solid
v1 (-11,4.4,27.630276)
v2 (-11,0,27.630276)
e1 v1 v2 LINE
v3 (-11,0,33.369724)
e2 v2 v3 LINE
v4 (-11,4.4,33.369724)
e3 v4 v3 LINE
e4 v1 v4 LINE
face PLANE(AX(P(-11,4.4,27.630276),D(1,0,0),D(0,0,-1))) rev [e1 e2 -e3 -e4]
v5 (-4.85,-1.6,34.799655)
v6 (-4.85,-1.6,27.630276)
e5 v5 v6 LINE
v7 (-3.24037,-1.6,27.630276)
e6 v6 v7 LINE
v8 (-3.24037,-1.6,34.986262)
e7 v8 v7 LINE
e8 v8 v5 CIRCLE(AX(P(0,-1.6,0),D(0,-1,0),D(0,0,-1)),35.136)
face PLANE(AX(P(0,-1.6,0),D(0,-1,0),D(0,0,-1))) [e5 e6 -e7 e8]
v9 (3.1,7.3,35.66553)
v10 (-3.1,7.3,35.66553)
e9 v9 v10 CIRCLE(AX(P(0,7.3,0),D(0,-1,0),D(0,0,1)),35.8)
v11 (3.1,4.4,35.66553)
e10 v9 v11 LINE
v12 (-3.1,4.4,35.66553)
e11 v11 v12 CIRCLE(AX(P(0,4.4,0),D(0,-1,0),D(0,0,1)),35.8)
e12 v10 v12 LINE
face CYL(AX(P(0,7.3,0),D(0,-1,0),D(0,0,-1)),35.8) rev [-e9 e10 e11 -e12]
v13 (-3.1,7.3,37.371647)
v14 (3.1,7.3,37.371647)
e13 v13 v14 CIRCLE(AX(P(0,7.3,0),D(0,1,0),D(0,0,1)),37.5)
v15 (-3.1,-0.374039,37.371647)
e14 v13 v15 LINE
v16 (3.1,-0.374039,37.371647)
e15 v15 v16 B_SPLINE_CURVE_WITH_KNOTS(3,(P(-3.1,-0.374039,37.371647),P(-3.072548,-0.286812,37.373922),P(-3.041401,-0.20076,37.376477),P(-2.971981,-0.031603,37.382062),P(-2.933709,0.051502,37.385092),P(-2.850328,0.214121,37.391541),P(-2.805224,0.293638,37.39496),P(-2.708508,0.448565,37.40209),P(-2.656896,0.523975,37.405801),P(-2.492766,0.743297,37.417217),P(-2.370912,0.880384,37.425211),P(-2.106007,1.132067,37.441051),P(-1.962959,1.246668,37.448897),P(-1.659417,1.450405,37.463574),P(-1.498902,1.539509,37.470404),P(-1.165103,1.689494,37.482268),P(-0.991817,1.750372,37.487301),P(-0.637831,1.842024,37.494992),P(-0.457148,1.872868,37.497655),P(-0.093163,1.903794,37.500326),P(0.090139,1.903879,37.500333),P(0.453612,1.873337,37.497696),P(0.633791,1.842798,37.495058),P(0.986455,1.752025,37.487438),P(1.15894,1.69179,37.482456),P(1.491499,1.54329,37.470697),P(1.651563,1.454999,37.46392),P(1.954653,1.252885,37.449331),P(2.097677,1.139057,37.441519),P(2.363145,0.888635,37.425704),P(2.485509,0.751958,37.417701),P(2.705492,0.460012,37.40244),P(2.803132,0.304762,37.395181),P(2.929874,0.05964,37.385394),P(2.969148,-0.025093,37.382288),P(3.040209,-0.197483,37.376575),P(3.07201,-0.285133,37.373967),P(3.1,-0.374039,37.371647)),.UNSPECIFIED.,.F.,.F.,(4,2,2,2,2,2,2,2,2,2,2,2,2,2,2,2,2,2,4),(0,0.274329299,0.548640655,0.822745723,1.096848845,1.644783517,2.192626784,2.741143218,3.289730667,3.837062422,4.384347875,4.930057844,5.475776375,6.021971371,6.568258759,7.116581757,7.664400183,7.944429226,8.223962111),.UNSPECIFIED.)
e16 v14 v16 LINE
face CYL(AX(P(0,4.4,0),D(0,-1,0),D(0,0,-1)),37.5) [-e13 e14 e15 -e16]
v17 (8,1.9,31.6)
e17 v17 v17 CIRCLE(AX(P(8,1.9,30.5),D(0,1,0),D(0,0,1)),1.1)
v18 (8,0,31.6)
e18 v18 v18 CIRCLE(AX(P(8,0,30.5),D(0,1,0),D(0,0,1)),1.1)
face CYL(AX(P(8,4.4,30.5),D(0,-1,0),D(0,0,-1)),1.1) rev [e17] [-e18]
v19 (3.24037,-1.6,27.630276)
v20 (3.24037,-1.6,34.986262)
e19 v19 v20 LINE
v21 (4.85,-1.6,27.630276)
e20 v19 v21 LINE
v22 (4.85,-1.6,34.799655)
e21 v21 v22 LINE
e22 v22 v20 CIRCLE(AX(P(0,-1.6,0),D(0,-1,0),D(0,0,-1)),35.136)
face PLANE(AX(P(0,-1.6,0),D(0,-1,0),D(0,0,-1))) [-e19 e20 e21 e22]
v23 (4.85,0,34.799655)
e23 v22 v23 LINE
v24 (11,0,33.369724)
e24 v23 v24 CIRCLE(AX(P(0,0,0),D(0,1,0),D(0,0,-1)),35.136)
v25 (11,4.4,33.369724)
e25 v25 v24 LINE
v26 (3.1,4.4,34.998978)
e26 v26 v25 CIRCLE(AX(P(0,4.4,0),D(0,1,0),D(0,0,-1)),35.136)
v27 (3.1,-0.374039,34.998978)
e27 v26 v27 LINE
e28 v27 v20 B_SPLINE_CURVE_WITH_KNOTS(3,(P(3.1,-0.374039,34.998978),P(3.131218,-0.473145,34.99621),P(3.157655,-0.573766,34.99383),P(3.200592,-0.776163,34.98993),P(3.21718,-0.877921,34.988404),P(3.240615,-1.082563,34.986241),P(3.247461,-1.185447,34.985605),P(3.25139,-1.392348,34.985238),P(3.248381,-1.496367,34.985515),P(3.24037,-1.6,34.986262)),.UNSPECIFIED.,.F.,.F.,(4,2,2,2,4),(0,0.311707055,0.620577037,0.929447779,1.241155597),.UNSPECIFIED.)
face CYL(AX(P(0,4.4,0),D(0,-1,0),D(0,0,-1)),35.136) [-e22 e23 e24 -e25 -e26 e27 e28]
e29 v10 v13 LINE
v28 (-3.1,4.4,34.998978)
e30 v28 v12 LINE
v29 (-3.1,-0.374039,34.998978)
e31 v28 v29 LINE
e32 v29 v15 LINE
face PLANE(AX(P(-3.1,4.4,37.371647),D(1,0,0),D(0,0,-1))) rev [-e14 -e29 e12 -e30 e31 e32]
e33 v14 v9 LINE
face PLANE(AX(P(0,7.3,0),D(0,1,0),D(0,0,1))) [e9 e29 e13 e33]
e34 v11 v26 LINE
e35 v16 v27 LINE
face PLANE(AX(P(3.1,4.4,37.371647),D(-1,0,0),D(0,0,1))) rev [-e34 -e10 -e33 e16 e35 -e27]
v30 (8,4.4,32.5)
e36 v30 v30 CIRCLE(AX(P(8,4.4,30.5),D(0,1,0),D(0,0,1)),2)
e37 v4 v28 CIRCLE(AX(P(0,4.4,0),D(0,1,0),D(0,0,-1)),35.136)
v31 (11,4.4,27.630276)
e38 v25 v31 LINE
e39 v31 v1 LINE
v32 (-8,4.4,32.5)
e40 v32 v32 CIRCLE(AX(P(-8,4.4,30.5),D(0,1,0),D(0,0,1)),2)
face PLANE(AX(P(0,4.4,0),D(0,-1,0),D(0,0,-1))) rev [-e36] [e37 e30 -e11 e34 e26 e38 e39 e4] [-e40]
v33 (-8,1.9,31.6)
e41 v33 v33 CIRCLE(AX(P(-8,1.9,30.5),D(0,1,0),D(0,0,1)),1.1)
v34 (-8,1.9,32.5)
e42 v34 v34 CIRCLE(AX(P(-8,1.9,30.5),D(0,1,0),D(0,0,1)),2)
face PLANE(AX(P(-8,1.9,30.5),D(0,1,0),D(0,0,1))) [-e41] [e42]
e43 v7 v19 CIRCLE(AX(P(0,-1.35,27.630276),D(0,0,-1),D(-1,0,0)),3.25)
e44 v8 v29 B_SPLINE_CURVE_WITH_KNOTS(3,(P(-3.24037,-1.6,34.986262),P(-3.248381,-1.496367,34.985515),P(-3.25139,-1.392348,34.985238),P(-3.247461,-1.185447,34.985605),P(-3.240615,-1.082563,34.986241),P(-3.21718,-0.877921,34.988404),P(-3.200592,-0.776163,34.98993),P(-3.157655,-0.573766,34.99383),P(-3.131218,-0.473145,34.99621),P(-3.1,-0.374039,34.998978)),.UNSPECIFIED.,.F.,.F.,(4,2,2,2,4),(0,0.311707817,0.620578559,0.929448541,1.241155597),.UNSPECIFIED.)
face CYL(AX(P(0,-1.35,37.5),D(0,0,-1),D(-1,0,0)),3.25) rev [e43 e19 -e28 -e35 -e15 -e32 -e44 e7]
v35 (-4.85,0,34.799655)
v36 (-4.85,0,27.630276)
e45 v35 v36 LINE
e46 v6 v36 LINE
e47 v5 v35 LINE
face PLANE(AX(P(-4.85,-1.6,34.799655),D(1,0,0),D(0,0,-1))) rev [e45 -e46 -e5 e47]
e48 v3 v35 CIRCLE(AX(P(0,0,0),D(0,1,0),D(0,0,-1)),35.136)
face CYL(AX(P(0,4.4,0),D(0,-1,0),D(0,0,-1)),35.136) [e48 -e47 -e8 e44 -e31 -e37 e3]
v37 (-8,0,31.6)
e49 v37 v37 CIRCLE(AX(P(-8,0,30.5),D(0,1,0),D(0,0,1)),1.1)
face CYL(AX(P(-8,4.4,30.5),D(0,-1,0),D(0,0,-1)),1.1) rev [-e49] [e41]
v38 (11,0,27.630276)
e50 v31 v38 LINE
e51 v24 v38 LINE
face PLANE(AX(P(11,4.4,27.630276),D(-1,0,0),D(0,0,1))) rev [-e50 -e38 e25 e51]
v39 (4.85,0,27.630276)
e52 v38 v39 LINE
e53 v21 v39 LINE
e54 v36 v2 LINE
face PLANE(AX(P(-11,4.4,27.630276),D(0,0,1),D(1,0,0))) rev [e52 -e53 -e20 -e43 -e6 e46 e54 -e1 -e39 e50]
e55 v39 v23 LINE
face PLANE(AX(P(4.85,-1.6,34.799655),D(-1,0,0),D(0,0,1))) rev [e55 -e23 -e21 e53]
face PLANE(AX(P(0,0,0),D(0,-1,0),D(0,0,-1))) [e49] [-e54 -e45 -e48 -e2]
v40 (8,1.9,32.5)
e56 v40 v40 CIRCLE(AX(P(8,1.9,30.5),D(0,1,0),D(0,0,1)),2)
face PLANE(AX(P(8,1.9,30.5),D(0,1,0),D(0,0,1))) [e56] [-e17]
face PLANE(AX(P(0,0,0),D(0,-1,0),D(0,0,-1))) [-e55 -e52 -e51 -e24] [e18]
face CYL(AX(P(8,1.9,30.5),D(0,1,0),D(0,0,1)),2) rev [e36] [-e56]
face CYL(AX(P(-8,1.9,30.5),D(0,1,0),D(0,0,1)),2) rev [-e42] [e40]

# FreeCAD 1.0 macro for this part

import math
import FreeCAD as App
import Part
import Sketcher
from FreeCAD import Vector

doc = App.newDocument("Part")
body = doc.addObject("PartDesign::Body", "Body")

sketch1 = body.newObject("Sketcher::SketchObject", "Sketch")
sketch1.AttachmentSupport = (doc.getObject("XZ_Plane"), [""])
sketch1.MapMode = "FlatFace"
sketch1.addGeometry(Part.LineSegment(Vector(-3.1, 34.998978, 0), Vector(-3.1, 37.371647, 0)), False)
sketch1.addGeometry(Part.ArcOfCircle(Part.Circle(Vector(0, 0, 0), Vector(0, 0, 1), 37.5), math.radians(85.258138), math.radians(94.741862)), False)
sketch1.addGeometry(Part.LineSegment(Vector(3.1, 37.371647, 0), Vector(3.1, 34.998978, 0)), False)
sketch1.addGeometry(Part.ArcOfCircle(Part.Circle(Vector(0, 0, 0), Vector(0, 0, 1), 35.136), math.radians(71.755707), math.radians(84.938292)), False)
sketch1.addGeometry(Part.LineSegment(Vector(11, 33.369724, 0), Vector(11, 27.630276, 0)), False)
sketch1.addGeometry(Part.LineSegment(Vector(11, 27.630276, 0), Vector(-11, 27.630276, 0)), False)
sketch1.addGeometry(Part.LineSegment(Vector(-11, 27.630276, 0), Vector(-11, 33.369724, 0)), False)
sketch1.addGeometry(Part.ArcOfCircle(Part.Circle(Vector(0, 0, 0), Vector(0, 0, 1), 35.136), math.radians(95.061708), math.radians(108.244293)), False)
sketch1.addGeometry(Part.Circle(Vector(8, 30.5, 0), Vector(0, 0, 1), 1.1), False)
sketch1.addGeometry(Part.Circle(Vector(-8, 30.5, 0), Vector(0, 0, 1), 1.1), False)
sketch1.addConstraint(Sketcher.Constraint("Coincident", 0, 2, 1, 2))
sketch1.addConstraint(Sketcher.Constraint("Coincident", 1, 1, 2, 1))
sketch1.addConstraint(Sketcher.Constraint("Coincident", 2, 2, 3, 2))
sketch1.addConstraint(Sketcher.Constraint("Coincident", 3, 1, 4, 1))
sketch1.addConstraint(Sketcher.Constraint("Coincident", 4, 2, 5, 1))
sketch1.addConstraint(Sketcher.Constraint("Coincident", 5, 2, 6, 1))
sketch1.addConstraint(Sketcher.Constraint("Coincident", 6, 2, 7, 2))
sketch1.addConstraint(Sketcher.Constraint("Coincident", 7, 1, 0, 1))
sketch1.addConstraint(Sketcher.Constraint("Vertical", 0))
sketch1.addConstraint(Sketcher.Constraint("Vertical", 2))
sketch1.addConstraint(Sketcher.Constraint("Vertical", 4))
sketch1.addConstraint(Sketcher.Constraint("Horizontal", 5))
sketch1.addConstraint(Sketcher.Constraint("Vertical", 6))
sketch1.addConstraint(Sketcher.Constraint("Coincident", 1, 3, -1, 1))
sketch1.addConstraint(Sketcher.Constraint("Coincident", 3, 3, -1, 1))
sketch1.addConstraint(Sketcher.Constraint("Coincident", 7, 3, -1, 1))
sketch1.addConstraint(Sketcher.Constraint("Equal", 3, 7))
sketch1.addConstraint(Sketcher.Constraint("Equal", 8, 9))
sketch1.addConstraint(Sketcher.Constraint("Symmetric", 8, 3, 9, 3, -2))
sketch1.addConstraint(Sketcher.Constraint("Horizontal", 0, 2, 1, 1))
sketch1.addConstraint(Sketcher.Constraint("Horizontal", 3, 1, 6, 2))
sketch1.addConstraint(Sketcher.Constraint("Diameter", 8, 2.2))
sketch1.addConstraint(Sketcher.Constraint("Radius", 1, 37.5))
sketch1.addConstraint(Sketcher.Constraint("DistanceX", 5, 2, 5, 1, 22.0))
sketch1.addConstraint(Sketcher.Constraint("DistanceX", -1, 1, 8, 3, 8.0))
sketch1.addConstraint(Sketcher.Constraint("Radius", 3, 35.136))
sketch1.addConstraint(Sketcher.Constraint("DistanceY", -1, 1, 8, 3, 30.5))
sketch1.addConstraint(Sketcher.Constraint("DistanceX", 0, 2, -1, 1, 3.1))
sketch1.addConstraint(Sketcher.Constraint("DistanceY", 4, 2, 4, 1, 5.739448))
pad1 = body.newObject("PartDesign::Pad", "Pad")
pad1.Profile = sketch1
pad1.Length = 4.4
pad1.Reversed = True

sketch2 = body.newObject("Sketcher::SketchObject", "Sketch001")
sketch2.AttachmentSupport = (doc.getObject("XZ_Plane"), [""])
sketch2.MapMode = "FlatFace"
sketch2.AttachmentOffset = App.Placement(Vector(0, 0, -4.4), App.Rotation())
sketch2.addGeometry(Part.LineSegment(Vector(3.1, 37.371647, 0), Vector(3.1, 35.66553, 0)), False)
sketch2.addGeometry(Part.ArcOfCircle(Part.Circle(Vector(0, 0, 0), Vector(0, 0, 1), 35.8), math.radians(85.032412), math.radians(94.967588)), False)
sketch2.addGeometry(Part.LineSegment(Vector(-3.1, 35.66553, 0), Vector(-3.1, 37.371647, 0)), False)
sketch2.addGeometry(Part.ArcOfCircle(Part.Circle(Vector(0, 0, 0), Vector(0, 0, 1), 37.5), math.radians(85.258138), math.radians(94.741862)), False)
sketch2.addConstraint(Sketcher.Constraint("Coincident", 0, 2, 1, 1))
sketch2.addConstraint(Sketcher.Constraint("Coincident", 1, 2, 2, 1))
sketch2.addConstraint(Sketcher.Constraint("Coincident", 2, 2, 3, 2))
sketch2.addConstraint(Sketcher.Constraint("Coincident", 3, 1, 0, 1))
sketch2.addConstraint(Sketcher.Constraint("Vertical", 0))
sketch2.addConstraint(Sketcher.Constraint("Vertical", 2))
sketch2.addConstraint(Sketcher.Constraint("Coincident", 1, 3, -1, 1))
sketch2.addConstraint(Sketcher.Constraint("Coincident", 3, 3, -1, 1))
sketch2.addConstraint(Sketcher.Constraint("Horizontal", 0, 2, 1, 2))
sketch2.addConstraint(Sketcher.Constraint("Radius", 1, 35.8))
sketch2.addConstraint(Sketcher.Constraint("Radius", 3, 37.5))
sketch2.addConstraint(Sketcher.Constraint("DistanceX", -1, 1, 0, 2, 3.1))
pad2 = body.newObject("PartDesign::Pad", "Pad001")
pad2.Profile = sketch2
pad2.Length = 2.9
pad2.Reversed = True

sketch3 = body.newObject("Sketcher::SketchObject", "Sketch002")
sketch3.AttachmentSupport = (doc.getObject("XZ_Plane"), [""])
sketch3.MapMode = "FlatFace"
sketch3.AttachmentOffset = App.Placement(Vector(0, 0, -4.4), App.Rotation())
sketch3.addGeometry(Part.Circle(Vector(-8, 30.5, 0), Vector(0, 0, 1), 2), False)
sketch3.addGeometry(Part.Circle(Vector(8, 30.5, 0), Vector(0, 0, 1), 2), False)
sketch3.addConstraint(Sketcher.Constraint("Equal", 0, 1))
sketch3.addConstraint(Sketcher.Constraint("Symmetric", 0, 3, 1, 3, -2))
sketch3.addConstraint(Sketcher.Constraint("Diameter", 0, 4.0))
sketch3.addConstraint(Sketcher.Constraint("DistanceX", 0, 3, -1, 1, 8.0))
sketch3.addConstraint(Sketcher.Constraint("DistanceY", -1, 1, 0, 3, 30.5))
pocket1 = body.newObject("PartDesign::Pocket", "Pocket")
pocket1.Profile = sketch3
pocket1.Length = 2.5
pocket1.Reversed = True

sketch4 = body.newObject("Sketcher::SketchObject", "Sketch003")
sketch4.AttachmentSupport = (doc.getObject("XZ_Plane"), [""])
sketch4.MapMode = "FlatFace"
sketch4.addGeometry(Part.LineSegment(Vector(-4.85, 34.799655, 0), Vector(-4.85, 27.630276, 0)), False)
sketch4.addGeometry(Part.LineSegment(Vector(-4.85, 27.630276, 0), Vector(4.85, 27.630276, 0)), False)
sketch4.addGeometry(Part.LineSegment(Vector(4.85, 27.630276, 0), Vector(4.85, 34.799655, 0)), False)
sketch4.addGeometry(Part.ArcOfCircle(Part.Circle(Vector(0, 0, 0), Vector(0, 0, 1), 35.136), math.radians(82.06584), math.radians(84.938292)), False)
sketch4.addGeometry(Part.LineSegment(Vector(3.1, 34.998978, 0), Vector(3.1, 37.371647, 0)), False)
sketch4.addGeometry(Part.ArcOfCircle(Part.Circle(Vector(0, 0, 0), Vector(0, 0, 1), 37.5), math.radians(85.258138), math.radians(94.741862)), False)
sketch4.addGeometry(Part.LineSegment(Vector(-3.1, 37.371647, 0), Vector(-3.1, 34.998978, 0)), False)
sketch4.addGeometry(Part.ArcOfCircle(Part.Circle(Vector(0, 0, 0), Vector(0, 0, 1), 35.136), math.radians(95.061708), math.radians(97.93416)), False)
sketch4.addConstraint(Sketcher.Constraint("Coincident", 0, 2, 1, 1))
sketch4.addConstraint(Sketcher.Constraint("Coincident", 1, 2, 2, 1))
sketch4.addConstraint(Sketcher.Constraint("Coincident", 2, 2, 3, 1))
sketch4.addConstraint(Sketcher.Constraint("Coincident", 3, 2, 4, 1))
sketch4.addConstraint(Sketcher.Constraint("Coincident", 4, 2, 5, 1))
sketch4.addConstraint(Sketcher.Constraint("Coincident", 5, 2, 6, 1))
sketch4.addConstraint(Sketcher.Constraint("Coincident", 6, 2, 7, 1))
sketch4.addConstraint(Sketcher.Constraint("Coincident", 7, 2, 0, 1))
sketch4.addConstraint(Sketcher.Constraint("Vertical", 0))
sketch4.addConstraint(Sketcher.Constraint("Horizontal", 1))
sketch4.addConstraint(Sketcher.Constraint("Vertical", 2))
sketch4.addConstraint(Sketcher.Constraint("Vertical", 4))
sketch4.addConstraint(Sketcher.Constraint("Vertical", 6))
sketch4.addConstraint(Sketcher.Constraint("Coincident", 3, 3, -1, 1))
sketch4.addConstraint(Sketcher.Constraint("Coincident", 5, 3, -1, 1))
sketch4.addConstraint(Sketcher.Constraint("Coincident", 7, 3, -1, 1))
sketch4.addConstraint(Sketcher.Constraint("Equal", 3, 7))
sketch4.addConstraint(Sketcher.Constraint("Horizontal", 4, 2, 5, 2))
sketch4.addConstraint(Sketcher.Constraint("Horizontal", 2, 2, 7, 2))
sketch4.addConstraint(Sketcher.Constraint("Radius", 5, 37.5))
sketch4.addConstraint(Sketcher.Constraint("DistanceX", 1, 1, 1, 2, 9.7))
sketch4.addConstraint(Sketcher.Constraint("Radius", 3, 35.136))
sketch4.addConstraint(Sketcher.Constraint("DistanceX", -1, 1, 3, 2, 3.1))
sketch4.addConstraint(Sketcher.Constraint("DistanceY", 0, 2, 0, 1, 7.169379))
pad3 = body.newObject("PartDesign::Pad", "Pad002")
pad3.Profile = sketch4
pad3.Length = 1.6

sketch5 = body.newObject("Sketcher::SketchObject", "Sketch004")
sketch5.AttachmentSupport = (doc.getObject("XY_Plane"), [""])
sketch5.MapMode = "FlatFace"
sketch5.AttachmentOffset = App.Placement(Vector(0, 0, 27.630276), App.Rotation())
sketch5.addGeometry(Part.Circle(Vector(0, -1.35, 0), Vector(0, 0, 1), 3.25), False)
sketch5.addConstraint(Sketcher.Constraint("PointOnObject", 0, 3, -2))
sketch5.addConstraint(Sketcher.Constraint("Diameter", 0, 6.5))
sketch5.addConstraint(Sketcher.Constraint("DistanceY", 0, 3, -1, 1, 1.35))
pocket2 = body.newObject("PartDesign::Pocket", "Pocket001")
pocket2.Profile = sketch5
pocket2.Type = "ThroughAll"
pocket2.Reversed = True

doc.recompute()
